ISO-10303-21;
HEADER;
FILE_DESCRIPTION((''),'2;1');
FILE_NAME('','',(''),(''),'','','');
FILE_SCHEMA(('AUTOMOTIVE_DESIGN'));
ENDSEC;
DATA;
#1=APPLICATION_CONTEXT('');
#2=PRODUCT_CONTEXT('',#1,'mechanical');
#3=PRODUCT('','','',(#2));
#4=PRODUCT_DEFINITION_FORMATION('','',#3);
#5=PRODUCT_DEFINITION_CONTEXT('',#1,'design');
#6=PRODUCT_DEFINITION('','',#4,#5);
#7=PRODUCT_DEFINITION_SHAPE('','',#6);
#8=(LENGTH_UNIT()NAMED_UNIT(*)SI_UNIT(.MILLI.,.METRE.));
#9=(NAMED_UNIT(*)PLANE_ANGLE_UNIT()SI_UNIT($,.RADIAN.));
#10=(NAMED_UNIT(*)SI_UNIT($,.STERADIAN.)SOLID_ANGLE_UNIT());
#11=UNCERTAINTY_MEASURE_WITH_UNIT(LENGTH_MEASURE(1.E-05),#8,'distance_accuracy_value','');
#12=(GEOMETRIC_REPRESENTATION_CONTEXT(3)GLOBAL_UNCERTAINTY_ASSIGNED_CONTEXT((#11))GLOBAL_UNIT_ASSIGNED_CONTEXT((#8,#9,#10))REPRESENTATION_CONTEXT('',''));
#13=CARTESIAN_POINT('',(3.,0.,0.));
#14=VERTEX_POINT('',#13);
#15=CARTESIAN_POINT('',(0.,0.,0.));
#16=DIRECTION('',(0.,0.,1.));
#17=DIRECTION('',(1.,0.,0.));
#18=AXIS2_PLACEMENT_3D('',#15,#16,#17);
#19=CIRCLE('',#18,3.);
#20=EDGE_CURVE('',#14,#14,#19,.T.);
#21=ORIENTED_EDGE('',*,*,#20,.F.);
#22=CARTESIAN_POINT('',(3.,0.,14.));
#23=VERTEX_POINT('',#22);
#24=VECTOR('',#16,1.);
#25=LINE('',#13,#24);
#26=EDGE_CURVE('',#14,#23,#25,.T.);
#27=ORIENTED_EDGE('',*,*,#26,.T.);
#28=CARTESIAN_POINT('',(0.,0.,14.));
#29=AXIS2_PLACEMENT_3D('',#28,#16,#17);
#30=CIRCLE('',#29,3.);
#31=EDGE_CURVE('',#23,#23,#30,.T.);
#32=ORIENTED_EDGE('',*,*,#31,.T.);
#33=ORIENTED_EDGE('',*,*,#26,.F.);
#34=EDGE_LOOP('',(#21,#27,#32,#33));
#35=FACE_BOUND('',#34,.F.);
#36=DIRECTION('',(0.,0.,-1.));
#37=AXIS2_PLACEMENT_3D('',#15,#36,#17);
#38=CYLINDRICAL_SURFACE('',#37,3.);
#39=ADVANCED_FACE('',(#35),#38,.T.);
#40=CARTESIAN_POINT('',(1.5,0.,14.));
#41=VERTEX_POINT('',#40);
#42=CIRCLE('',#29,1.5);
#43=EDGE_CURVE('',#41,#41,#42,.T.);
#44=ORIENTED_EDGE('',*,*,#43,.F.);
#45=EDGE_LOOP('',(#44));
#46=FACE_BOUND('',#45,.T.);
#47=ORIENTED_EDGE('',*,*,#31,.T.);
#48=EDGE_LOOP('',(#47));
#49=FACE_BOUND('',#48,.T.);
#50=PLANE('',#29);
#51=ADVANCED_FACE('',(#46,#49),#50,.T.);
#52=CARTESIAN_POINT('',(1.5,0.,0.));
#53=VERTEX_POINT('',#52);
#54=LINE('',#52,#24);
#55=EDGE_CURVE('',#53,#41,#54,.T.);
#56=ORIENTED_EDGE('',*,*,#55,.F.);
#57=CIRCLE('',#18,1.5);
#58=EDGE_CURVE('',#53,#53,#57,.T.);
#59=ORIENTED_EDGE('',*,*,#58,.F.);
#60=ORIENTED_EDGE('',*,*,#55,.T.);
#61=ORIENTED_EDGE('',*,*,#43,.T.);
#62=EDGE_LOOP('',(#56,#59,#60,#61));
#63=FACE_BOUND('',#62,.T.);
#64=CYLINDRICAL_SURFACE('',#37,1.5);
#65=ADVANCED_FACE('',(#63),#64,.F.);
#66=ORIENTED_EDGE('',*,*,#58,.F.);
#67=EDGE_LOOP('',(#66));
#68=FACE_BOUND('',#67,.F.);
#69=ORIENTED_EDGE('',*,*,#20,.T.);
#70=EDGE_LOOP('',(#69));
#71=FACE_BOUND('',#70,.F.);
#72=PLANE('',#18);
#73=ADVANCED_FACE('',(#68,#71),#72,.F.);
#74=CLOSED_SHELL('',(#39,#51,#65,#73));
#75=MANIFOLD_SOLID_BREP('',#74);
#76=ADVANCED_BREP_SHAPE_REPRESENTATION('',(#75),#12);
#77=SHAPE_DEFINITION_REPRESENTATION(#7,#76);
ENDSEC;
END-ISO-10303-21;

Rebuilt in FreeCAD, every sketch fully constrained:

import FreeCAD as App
import Part
import Sketcher

V = App.Vector
Q = App.Units.Quantity

doc = App.newDocument("Part")
body = doc.addObject("PartDesign::Body", "Body")

# Sketch on XY plane
sketch1 = body.newObject("Sketcher::SketchObject", "Sketch")
sketch1.AttachmentSupport = (doc.getObject("XY_Plane"), [""])
sketch1.MapMode = "FlatFace"
sketch1.addGeometry([
    Part.Circle(V(0, 0, 0), V(0, 0, 1), 3),
    Part.Circle(V(0, 0, 0), V(0, 0, 1), 1.5),
], False)
sketch1.addConstraint([
    Sketcher.Constraint("Coincident", 0, 3, -1, 1),
    Sketcher.Constraint("Coincident", 1, 3, -1, 1),
    Sketcher.Constraint("Diameter", 0, Q("6 mm")),
    Sketcher.Constraint("Diameter", 1, Q("3 mm")),
])
pad1 = body.newObject("PartDesign::Pad", "Pad")
pad1.Profile = sketch1
pad1.Length = 14

doc.recompute()
